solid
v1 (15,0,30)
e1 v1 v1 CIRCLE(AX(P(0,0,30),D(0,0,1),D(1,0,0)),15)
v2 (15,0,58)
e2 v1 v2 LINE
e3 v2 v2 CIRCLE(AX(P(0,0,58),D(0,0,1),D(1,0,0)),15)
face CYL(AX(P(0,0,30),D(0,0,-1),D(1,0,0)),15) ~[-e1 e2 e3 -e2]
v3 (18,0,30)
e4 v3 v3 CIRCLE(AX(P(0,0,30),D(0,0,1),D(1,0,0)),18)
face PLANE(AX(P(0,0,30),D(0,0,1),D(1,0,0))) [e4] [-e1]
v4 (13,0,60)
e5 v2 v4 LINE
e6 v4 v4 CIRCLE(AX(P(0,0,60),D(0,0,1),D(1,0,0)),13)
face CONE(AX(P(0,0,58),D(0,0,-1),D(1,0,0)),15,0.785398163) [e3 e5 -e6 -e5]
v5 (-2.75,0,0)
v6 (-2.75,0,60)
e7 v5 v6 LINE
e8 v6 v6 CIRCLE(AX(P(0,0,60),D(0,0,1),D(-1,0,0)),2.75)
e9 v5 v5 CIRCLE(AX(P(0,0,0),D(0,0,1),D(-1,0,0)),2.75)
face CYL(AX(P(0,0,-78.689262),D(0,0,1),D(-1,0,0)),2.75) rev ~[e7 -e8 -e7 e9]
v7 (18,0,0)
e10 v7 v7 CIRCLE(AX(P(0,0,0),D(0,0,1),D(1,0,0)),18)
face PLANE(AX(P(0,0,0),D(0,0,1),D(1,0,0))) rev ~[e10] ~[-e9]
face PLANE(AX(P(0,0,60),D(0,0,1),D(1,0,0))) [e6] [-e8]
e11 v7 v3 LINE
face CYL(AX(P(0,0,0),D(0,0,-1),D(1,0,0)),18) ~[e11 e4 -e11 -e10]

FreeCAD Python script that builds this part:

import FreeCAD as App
import Part
import Sketcher

V = App.Vector


def edges_at(feature, points):
    """Names of the edges that pass closest to the given points."""
    edges = feature.Shape.Edges
    near = lambda p: min(range(len(edges)), key=lambda i: edges[i].distToShape(Part.Vertex(*p))[0])
    return sorted({f"Edge{near(p) + 1}" for p in points})

doc = App.newDocument("Part")
body = doc.addObject("PartDesign::Body", "Body")

sketch1 = doc.addObject("Sketcher::SketchObject", "Sketch")
body.addObject(sketch1)
sketch1.AttachmentSupport = (doc.XY_Plane, [""])
sketch1.MapMode = "FlatFace"
sketch1.addGeometry(Part.Circle(V(0, 0, 0), V(0, 0, 1), 18), False)
sketch1.addConstraint(Sketcher.Constraint("Coincident", 0, 3, -1, 1))
sketch1.addConstraint(Sketcher.Constraint("Diameter", 0, 36.0))
pad1 = doc.addObject("PartDesign::Pad", "Pad")
body.addObject(pad1)
pad1.Profile = sketch1
pad1.Length = 30

sketch2 = doc.addObject("Sketcher::SketchObject", "Sketch001")
body.addObject(sketch2)
sketch2.AttachmentSupport = (doc.XY_Plane, [""])
sketch2.MapMode = "FlatFace"
sketch2.AttachmentOffset = App.Placement(V(0, 0, 30), App.Rotation())
sketch2.addGeometry(Part.Circle(V(0, 0, 0), V(0, 0, 1), 15), False)
sketch2.addConstraint(Sketcher.Constraint("Coincident", 0, 3, -1, 1))
sketch2.addConstraint(Sketcher.Constraint("Diameter", 0, 30.0))
pad2 = doc.addObject("PartDesign::Pad", "Pad001")
body.addObject(pad2)
pad2.Profile = sketch2
pad2.Length = 30

sketch3 = doc.addObject("Sketcher::SketchObject", "Sketch002")
body.addObject(sketch3)
sketch3.AttachmentSupport = (doc.XY_Plane, [""])
sketch3.MapMode = "FlatFace"
sketch3.addGeometry(Part.Circle(V(0, 0, 0), V(0, 0, 1), 2.75), False)
sketch3.addConstraint(Sketcher.Constraint("Coincident", 0, 3, -1, 1))
sketch3.addConstraint(Sketcher.Constraint("Diameter", 0, 5.5))
doc.recompute()
hole = doc.addObject("PartDesign::Hole", "Hole")
body.addObject(hole)
hole.Profile = sketch3
hole.ThreadType = "None"
hole.Diameter = 5.5
hole.DepthType = "ThroughAll"
hole.Reversed = True
doc.recompute()

chamfer = doc.addObject("PartDesign::Chamfer", "Chamfer")
body.addObject(chamfer)
chamfer.Base = (hole, edges_at(hole, [(-15, 0, 60)]))
chamfer.Size = 2

doc.recompute()
